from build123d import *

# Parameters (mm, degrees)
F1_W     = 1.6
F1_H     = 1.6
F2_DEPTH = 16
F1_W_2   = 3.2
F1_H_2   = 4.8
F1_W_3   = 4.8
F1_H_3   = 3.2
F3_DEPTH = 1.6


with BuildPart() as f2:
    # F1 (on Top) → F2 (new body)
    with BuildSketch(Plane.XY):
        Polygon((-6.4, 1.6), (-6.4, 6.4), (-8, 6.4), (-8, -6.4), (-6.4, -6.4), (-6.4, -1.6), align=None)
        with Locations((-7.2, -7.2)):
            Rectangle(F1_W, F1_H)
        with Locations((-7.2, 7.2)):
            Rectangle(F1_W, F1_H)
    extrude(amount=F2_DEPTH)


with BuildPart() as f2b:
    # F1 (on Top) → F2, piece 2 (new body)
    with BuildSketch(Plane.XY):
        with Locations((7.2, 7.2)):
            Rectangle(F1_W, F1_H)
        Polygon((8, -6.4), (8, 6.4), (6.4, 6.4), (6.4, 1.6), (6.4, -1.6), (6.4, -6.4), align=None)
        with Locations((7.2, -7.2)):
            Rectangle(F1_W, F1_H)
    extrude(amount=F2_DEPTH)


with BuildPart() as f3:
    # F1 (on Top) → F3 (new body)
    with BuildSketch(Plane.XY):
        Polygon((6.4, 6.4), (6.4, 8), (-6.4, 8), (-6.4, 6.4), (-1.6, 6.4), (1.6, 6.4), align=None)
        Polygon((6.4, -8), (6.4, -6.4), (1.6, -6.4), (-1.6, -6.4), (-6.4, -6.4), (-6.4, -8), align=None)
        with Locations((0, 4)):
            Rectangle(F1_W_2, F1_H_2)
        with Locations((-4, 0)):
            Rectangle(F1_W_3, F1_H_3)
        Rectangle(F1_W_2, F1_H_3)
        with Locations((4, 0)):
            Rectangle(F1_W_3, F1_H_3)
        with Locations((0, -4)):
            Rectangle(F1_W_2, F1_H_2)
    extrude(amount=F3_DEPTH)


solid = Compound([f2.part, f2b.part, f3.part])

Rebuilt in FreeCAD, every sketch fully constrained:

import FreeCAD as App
import Part
import Sketcher
from FreeCAD import Vector


def add_polygon(sketch, points):
    """Adds a closed chain of lines whose ends are joined by coincident constraints."""
    first, n = sketch.GeometryCount, len(points)
    for a, b in zip(points, points[1:] + points[:1]):
        sketch.addGeometry(Part.LineSegment(App.Vector(*a, 0), App.Vector(*b, 0)), False)
    for i in range(n):
        sketch.addConstraint(Sketcher.Constraint("Coincident", first + i, 2, first + (i + 1) % n, 1))

doc = App.newDocument("Part")
params = doc.addObject("Spreadsheet::Sheet", "Params")
for row, (alias, value) in enumerate([
    ("sketch1_height", "16 mm"),
    ("sketch1_width", "1.6 mm"),
    ("pad1_length", "16 mm"),
    ("sketch2_height", "16 mm"),
    ("sketch2_width", "1.6 mm"),
    ("pad2_length", "16 mm"),
    ("sketch3_width", "12.8 mm"),
    ("sketch3_width2", "4.8 mm"),
    ("sketch3_height", "1.6 mm"),
    ("sketch3_height2", "3.2 mm"),
    ("pad3_length", "1.6 mm"),
], start=1):
    params.set(f"A{row}", alias)
    params.set(f"B{row}", "=" + value)
    params.setAlias(f"B{row}", alias)

body = doc.addObject("PartDesign::Body", "Body")

sketch1 = body.newObject("Sketcher::SketchObject", "Sketch")
sketch1.AttachmentSupport = (doc.getObject("XY_Plane"), [""])
sketch1.MapMode = "FlatFace"
add_polygon(sketch1, [(-8, -8), (-6.4, -8), (-6.4, 8), (-8, 8)])
sketch1.addConstraint([
    Sketcher.Constraint("Horizontal", 0),
    Sketcher.Constraint("Vertical", 1),
    Sketcher.Constraint("Horizontal", 2),
    Sketcher.Constraint("Vertical", 3),
    Sketcher.Constraint("DistanceY", 1, 1, 1, 2, 16.0),
    Sketcher.Constraint("DistanceX", 0, 1, 0, 2, 1.6),
    Sketcher.Constraint("DistanceY", 0, 2, -1, 1, 8.0),
    Sketcher.Constraint("DistanceX", 2, 2, -1, 1, 8.0),
])
sketch1.setExpression("Constraints[8]", "Params.sketch1_height")
sketch1.setExpression("Constraints[9]", "Params.sketch1_width")
pad1 = body.newObject("PartDesign::Pad", "Pad")
pad1.Profile = sketch1
pad1.setExpression("Length", "Params.pad1_length")
body2 = doc.addObject("PartDesign::Body", "Body001")

sketch2 = body2.newObject("Sketcher::SketchObject", "Sketch001")
sketch2.AttachmentSupport = (doc.getObject("XY_Plane001"), [""])
sketch2.MapMode = "FlatFace"
add_polygon(sketch2, [(6.4, 8), (6.4, -8), (8, -8), (8, 8)])
sketch2.addConstraint([
    Sketcher.Constraint("Vertical", 0),
    Sketcher.Constraint("Horizontal", 1),
    Sketcher.Constraint("Vertical", 2),
    Sketcher.Constraint("Horizontal", 3),
    Sketcher.Constraint("DistanceY", 0, 2, 0, 1, 16.0),
    Sketcher.Constraint("DistanceX", 1, 1, 1, 2, 1.6),
    Sketcher.Constraint("DistanceY", 0, 2, -1, 1, 8.0),
    Sketcher.Constraint("DistanceX", -1, 1, 1, 2, 8.0),
])
sketch2.setExpression("Constraints[8]", "Params.sketch2_height")
sketch2.setExpression("Constraints[9]", "Params.sketch2_width")
pad2 = body2.newObject("PartDesign::Pad", "Pad001")
pad2.Profile = sketch2
pad2.setExpression("Length", "Params.pad2_length")
body3 = doc.addObject("PartDesign::Body", "Body002")

sketch3 = body3.newObject("Sketcher::SketchObject", "Sketch002")
sketch3.AttachmentSupport = (doc.getObject("XY_Plane002"), [""])
sketch3.MapMode = "FlatFace"
add_polygon(sketch3, [(6.4, 6.4), (6.4, 8), (-6.4, 8), (-6.4, 6.4), (-1.6, 6.4), (-1.6, 1.6), (-6.4, 1.6), (-6.4, -1.6), (-1.6, -1.6), (-1.6, -6.4), (-6.4, -6.4), (-6.4, -8), (6.4, -8), (6.4, -6.4), (1.6, -6.4), (1.6, -1.6), (6.4, -1.6), (6.4, 1.6), (1.6, 1.6), (1.6, 6.4)])
sketch3.addConstraint([
    Sketcher.Constraint("Vertical", 0),
    Sketcher.Constraint("Horizontal", 1),
    Sketcher.Constraint("Vertical", 2),
    Sketcher.Constraint("Horizontal", 3),
    Sketcher.Constraint("Vertical", 4),
    Sketcher.Constraint("Horizontal", 5),
    Sketcher.Constraint("Vertical", 6),
    Sketcher.Constraint("Horizontal", 7),
    Sketcher.Constraint("Vertical", 8),
    Sketcher.Constraint("Horizontal", 9),
    Sketcher.Constraint("Vertical", 10),
    Sketcher.Constraint("Horizontal", 11),
    Sketcher.Constraint("Vertical", 12),
    Sketcher.Constraint("Horizontal", 13),
    Sketcher.Constraint("Vertical", 14),
    Sketcher.Constraint("Horizontal", 15),
    Sketcher.Constraint("Vertical", 16),
    Sketcher.Constraint("Horizontal", 17),
    Sketcher.Constraint("Vertical", 18),
    Sketcher.Constraint("Horizontal", 19),
    Sketcher.Constraint("Symmetric", 0, 2, 10, 2, -1, 1),
    Sketcher.Constraint("Symmetric", 2, 2, 12, 2, -1, 1),
    Sketcher.Constraint("Symmetric", 4, 2, 14, 2, -1, 1),
    Sketcher.Constraint("Symmetric", 6, 2, 16, 2, -1, 1),
    Sketcher.Constraint("Symmetric", 8, 2, 18, 2, -1, 1),
    Sketcher.Constraint("Symmetric", 9, 2, 12, 2, -2),
    Sketcher.Constraint("Symmetric", 7, 2, 14, 2, -2),
    Sketcher.Constraint("Vertical", 2, 2, 5, 2),
    Sketcher.Constraint("Equal", 19, 4),
    Sketcher.Constraint("DistanceX", 1, 2, 1, 1, 12.8),
    Sketcher.Constraint("DistanceX", 3, 1, 3, 2, 4.8),
    Sketcher.Constraint("DistanceY", 0, 1, 0, 2, 1.6),
    Sketcher.Constraint("DistanceY", 6, 2, 6, 1, 3.2),
])
sketch3.setExpression("Constraints[49]", "Params.sketch3_width")
sketch3.setExpression("Constraints[50]", "Params.sketch3_width2")
sketch3.setExpression("Constraints[51]", "Params.sketch3_height")
sketch3.setExpression("Constraints[52]", "Params.sketch3_height2")
pad3 = body3.newObject("PartDesign::Pad", "Pad002")
pad3.Profile = sketch3
pad3.setExpression("Length", "Params.pad3_length")

doc.recompute()
